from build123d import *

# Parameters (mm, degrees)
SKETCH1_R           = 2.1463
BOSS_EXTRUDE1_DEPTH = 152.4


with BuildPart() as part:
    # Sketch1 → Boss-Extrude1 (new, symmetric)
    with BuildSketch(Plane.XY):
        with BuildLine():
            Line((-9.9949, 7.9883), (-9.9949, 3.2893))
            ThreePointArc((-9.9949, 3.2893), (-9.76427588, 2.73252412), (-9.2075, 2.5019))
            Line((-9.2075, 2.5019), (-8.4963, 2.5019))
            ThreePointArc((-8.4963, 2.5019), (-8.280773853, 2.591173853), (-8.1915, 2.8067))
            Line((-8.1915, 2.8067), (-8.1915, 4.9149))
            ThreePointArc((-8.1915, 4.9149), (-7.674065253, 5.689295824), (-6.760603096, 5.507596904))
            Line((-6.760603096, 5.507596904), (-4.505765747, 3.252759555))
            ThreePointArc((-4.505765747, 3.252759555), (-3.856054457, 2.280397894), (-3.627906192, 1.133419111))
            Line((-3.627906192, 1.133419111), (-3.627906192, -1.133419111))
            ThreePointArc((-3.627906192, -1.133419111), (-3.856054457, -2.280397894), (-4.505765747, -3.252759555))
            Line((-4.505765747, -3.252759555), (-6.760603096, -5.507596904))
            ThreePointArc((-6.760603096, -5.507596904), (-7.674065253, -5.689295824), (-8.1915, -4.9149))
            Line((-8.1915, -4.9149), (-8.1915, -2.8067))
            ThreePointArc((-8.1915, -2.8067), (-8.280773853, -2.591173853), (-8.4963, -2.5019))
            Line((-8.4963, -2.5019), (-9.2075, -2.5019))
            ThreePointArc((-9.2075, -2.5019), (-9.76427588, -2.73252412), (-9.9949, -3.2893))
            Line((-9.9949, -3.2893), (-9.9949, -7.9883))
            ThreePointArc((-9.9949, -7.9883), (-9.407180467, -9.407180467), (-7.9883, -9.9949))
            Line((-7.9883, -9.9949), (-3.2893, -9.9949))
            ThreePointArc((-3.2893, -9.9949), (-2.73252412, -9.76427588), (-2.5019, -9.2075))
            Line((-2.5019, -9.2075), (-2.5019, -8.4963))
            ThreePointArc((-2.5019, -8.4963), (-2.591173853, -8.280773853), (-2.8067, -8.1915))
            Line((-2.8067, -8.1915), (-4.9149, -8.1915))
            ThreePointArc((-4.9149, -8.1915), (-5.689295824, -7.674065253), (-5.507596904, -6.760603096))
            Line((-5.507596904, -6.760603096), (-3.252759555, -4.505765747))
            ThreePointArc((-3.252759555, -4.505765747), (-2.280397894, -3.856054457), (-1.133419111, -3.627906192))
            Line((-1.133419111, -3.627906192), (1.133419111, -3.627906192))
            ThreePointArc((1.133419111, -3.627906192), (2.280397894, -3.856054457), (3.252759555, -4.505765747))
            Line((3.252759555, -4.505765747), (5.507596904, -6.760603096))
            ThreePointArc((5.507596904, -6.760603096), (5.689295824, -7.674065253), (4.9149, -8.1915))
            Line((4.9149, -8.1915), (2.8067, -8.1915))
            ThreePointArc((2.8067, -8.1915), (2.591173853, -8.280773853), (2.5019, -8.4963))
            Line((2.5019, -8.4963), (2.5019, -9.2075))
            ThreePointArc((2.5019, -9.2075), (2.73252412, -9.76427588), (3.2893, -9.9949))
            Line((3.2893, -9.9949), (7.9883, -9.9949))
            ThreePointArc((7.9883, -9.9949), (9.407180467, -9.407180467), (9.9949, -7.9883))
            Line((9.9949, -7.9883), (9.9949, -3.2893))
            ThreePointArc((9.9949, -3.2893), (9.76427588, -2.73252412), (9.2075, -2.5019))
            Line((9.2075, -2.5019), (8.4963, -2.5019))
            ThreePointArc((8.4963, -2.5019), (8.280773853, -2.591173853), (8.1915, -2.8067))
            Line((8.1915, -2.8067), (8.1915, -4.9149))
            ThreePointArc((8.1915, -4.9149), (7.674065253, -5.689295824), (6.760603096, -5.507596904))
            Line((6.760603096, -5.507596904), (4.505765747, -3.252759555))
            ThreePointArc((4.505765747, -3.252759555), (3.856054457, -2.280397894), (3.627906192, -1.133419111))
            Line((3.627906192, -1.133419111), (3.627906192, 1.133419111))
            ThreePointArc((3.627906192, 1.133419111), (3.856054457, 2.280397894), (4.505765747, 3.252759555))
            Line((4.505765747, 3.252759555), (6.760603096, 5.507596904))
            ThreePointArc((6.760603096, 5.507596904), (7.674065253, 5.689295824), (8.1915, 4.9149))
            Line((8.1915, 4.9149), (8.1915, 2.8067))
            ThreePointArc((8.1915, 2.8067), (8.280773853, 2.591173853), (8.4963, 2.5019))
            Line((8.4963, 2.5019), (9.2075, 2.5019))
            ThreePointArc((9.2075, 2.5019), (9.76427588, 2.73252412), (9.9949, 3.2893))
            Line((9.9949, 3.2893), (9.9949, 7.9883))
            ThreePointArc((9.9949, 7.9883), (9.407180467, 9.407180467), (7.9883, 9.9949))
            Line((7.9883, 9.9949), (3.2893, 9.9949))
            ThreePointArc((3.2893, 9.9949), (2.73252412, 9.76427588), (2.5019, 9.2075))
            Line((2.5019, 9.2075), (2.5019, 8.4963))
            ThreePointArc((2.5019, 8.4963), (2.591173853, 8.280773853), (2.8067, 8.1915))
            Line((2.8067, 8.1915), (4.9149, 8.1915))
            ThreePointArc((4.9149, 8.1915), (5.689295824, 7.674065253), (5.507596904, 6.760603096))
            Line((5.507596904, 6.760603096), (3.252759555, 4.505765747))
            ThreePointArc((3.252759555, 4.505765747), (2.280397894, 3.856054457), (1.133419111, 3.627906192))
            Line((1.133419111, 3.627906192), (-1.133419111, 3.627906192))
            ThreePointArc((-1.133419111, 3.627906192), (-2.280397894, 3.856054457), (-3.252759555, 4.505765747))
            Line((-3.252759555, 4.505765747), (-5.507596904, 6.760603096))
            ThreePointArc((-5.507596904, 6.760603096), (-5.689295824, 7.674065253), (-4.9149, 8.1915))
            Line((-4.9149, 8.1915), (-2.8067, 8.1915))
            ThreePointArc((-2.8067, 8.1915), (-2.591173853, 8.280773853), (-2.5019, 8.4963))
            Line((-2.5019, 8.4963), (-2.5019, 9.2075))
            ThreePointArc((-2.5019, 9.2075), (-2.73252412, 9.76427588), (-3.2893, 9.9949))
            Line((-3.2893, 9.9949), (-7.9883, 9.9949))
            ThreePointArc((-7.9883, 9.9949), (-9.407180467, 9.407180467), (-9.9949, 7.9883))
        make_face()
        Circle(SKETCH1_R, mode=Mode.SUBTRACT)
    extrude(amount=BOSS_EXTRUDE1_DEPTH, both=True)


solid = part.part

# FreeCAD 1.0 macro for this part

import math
import FreeCAD as App
import Part
import Sketcher
from FreeCAD import Vector
Q = App.Units.Quantity

doc = App.newDocument("Part")
body = doc.addObject("PartDesign::Body", "Body")

sketch1 = body.newObject("Sketcher::SketchObject", "Sketch")
sketch1.AttachmentSupport = (doc.getObject("XY_Plane"), [""])
sketch1.MapMode = "FlatFace"
sketch1.addGeometry(Part.LineSegment(Vector(-9.99, 7.99, 0), Vector(-9.99, 3.29, 0)), False)
sketch1.addGeometry(Part.ArcOfCircle(Part.Circle(Vector(-9.21, 3.29, 0), Vector(0, 0, 1), 0.79), math.radians(180), math.radians(270)), False)
sketch1.addGeometry(Part.LineSegment(Vector(-9.21, 2.5, 0), Vector(-8.5, 2.5, 0)), False)
sketch1.addGeometry(Part.ArcOfCircle(Part.Circle(Vector(-8.5, 2.81, 0), Vector(0, 0, 1), 0.3), math.radians(-90), math.radians(0)), False)
sketch1.addGeometry(Part.LineSegment(Vector(-8.19, 2.81, 0), Vector(-8.19, 4.91, 0)), False)
sketch1.addGeometry(Part.ArcOfCircle(Part.Circle(Vector(-7.35, 4.91, 0), Vector(0, 0, 1), 0.84), math.radians(45), math.radians(180)), False)
sketch1.addGeometry(Part.LineSegment(Vector(-6.76, 5.51, 0), Vector(-4.51, 3.25, 0)), False)
sketch1.addGeometry(Part.ArcOfCircle(Part.Circle(Vector(-6.63, 1.13, 0), Vector(0, 0, 1), 3), math.radians(0), math.radians(45)), False)
sketch1.addGeometry(Part.LineSegment(Vector(-3.63, 1.13, 0), Vector(-3.63, -1.13, 0)), False)
sketch1.addGeometry(Part.ArcOfCircle(Part.Circle(Vector(-6.63, -1.13, 0), Vector(0, 0, 1), 3), math.radians(-45), math.radians(0)), False)
sketch1.addGeometry(Part.LineSegment(Vector(-4.51, -3.25, 0), Vector(-6.76, -5.51, 0)), False)
sketch1.addGeometry(Part.ArcOfCircle(Part.Circle(Vector(-7.35, -4.91, 0), Vector(0, 0, 1), 0.84), math.radians(180), math.radians(315)), False)
sketch1.addGeometry(Part.LineSegment(Vector(-8.19, -4.91, 0), Vector(-8.19, -2.81, 0)), False)
sketch1.addGeometry(Part.ArcOfCircle(Part.Circle(Vector(-8.5, -2.81, 0), Vector(0, 0, 1), 0.3), math.radians(0), math.radians(90)), False)
sketch1.addGeometry(Part.LineSegment(Vector(-8.5, -2.5, 0), Vector(-9.21, -2.5, 0)), False)
sketch1.addGeometry(Part.ArcOfCircle(Part.Circle(Vector(-9.21, -3.29, 0), Vector(0, 0, 1), 0.79), math.radians(90), math.radians(180)), False)
sketch1.addGeometry(Part.LineSegment(Vector(-9.99, -3.29, 0), Vector(-9.99, -7.99, 0)), False)
sketch1.addGeometry(Part.ArcOfCircle(Part.Circle(Vector(-7.99, -7.99, 0), Vector(0, 0, 1), 2.01), math.radians(180), math.radians(270)), False)
sketch1.addGeometry(Part.LineSegment(Vector(-7.99, -9.99, 0), Vector(-3.29, -9.99, 0)), False)
sketch1.addGeometry(Part.ArcOfCircle(Part.Circle(Vector(-3.29, -9.21, 0), Vector(0, 0, 1), 0.79), math.radians(-90), math.radians(0)), False)
sketch1.addGeometry(Part.LineSegment(Vector(-2.5, -9.21, 0), Vector(-2.5, -8.5, 0)), False)
sketch1.addGeometry(Part.ArcOfCircle(Part.Circle(Vector(-2.81, -8.5, 0), Vector(0, 0, 1), 0.3), math.radians(0), math.radians(90)), False)
sketch1.addGeometry(Part.LineSegment(Vector(-2.81, -8.19, 0), Vector(-4.91, -8.19, 0)), False)
sketch1.addGeometry(Part.ArcOfCircle(Part.Circle(Vector(-4.91, -7.35, 0), Vector(0, 0, 1), 0.84), math.radians(135), math.radians(270)), False)
sketch1.addGeometry(Part.LineSegment(Vector(-5.51, -6.76, 0), Vector(-3.25, -4.51, 0)), False)
sketch1.addGeometry(Part.ArcOfCircle(Part.Circle(Vector(-1.13, -6.63, 0), Vector(0, 0, 1), 3), math.radians(90), math.radians(135)), False)
sketch1.addGeometry(Part.LineSegment(Vector(-1.13, -3.63, 0), Vector(1.13, -3.63, 0)), False)
sketch1.addGeometry(Part.ArcOfCircle(Part.Circle(Vector(1.13, -6.63, 0), Vector(0, 0, 1), 3), math.radians(45), math.radians(90)), False)
sketch1.addGeometry(Part.LineSegment(Vector(3.25, -4.51, 0), Vector(5.51, -6.76, 0)), False)
sketch1.addGeometry(Part.ArcOfCircle(Part.Circle(Vector(4.91, -7.35, 0), Vector(0, 0, 1), 0.84), math.radians(-90), math.radians(45)), False)
sketch1.addGeometry(Part.LineSegment(Vector(4.91, -8.19, 0), Vector(2.81, -8.19, 0)), False)
sketch1.addGeometry(Part.ArcOfCircle(Part.Circle(Vector(2.81, -8.5, 0), Vector(0, 0, 1), 0.3), math.radians(90), math.radians(180)), False)
sketch1.addGeometry(Part.LineSegment(Vector(2.5, -8.5, 0), Vector(2.5, -9.21, 0)), False)
sketch1.addGeometry(Part.ArcOfCircle(Part.Circle(Vector(3.29, -9.21, 0), Vector(0, 0, 1), 0.79), math.radians(180), math.radians(270)), False)
sketch1.addGeometry(Part.LineSegment(Vector(3.29, -9.99, 0), Vector(7.99, -9.99, 0)), False)
sketch1.addGeometry(Part.ArcOfCircle(Part.Circle(Vector(7.99, -7.99, 0), Vector(0, 0, 1), 2.01), math.radians(-90), math.radians(0)), False)
sketch1.addGeometry(Part.LineSegment(Vector(9.99, -7.99, 0), Vector(9.99, -3.29, 0)), False)
sketch1.addGeometry(Part.ArcOfCircle(Part.Circle(Vector(9.21, -3.29, 0), Vector(0, 0, 1), 0.79), math.radians(0), math.radians(90)), False)
sketch1.addGeometry(Part.LineSegment(Vector(9.21, -2.5, 0), Vector(8.5, -2.5, 0)), False)
sketch1.addGeometry(Part.ArcOfCircle(Part.Circle(Vector(8.5, -2.81, 0), Vector(0, 0, 1), 0.3), math.radians(90), math.radians(180)), False)
sketch1.addGeometry(Part.LineSegment(Vector(8.19, -2.81, 0), Vector(8.19, -4.91, 0)), False)
sketch1.addGeometry(Part.ArcOfCircle(Part.Circle(Vector(7.35, -4.91, 0), Vector(0, 0, 1), 0.84), math.radians(-135), math.radians(0)), False)
sketch1.addGeometry(Part.LineSegment(Vector(6.76, -5.51, 0), Vector(4.51, -3.25, 0)), False)
sketch1.addGeometry(Part.ArcOfCircle(Part.Circle(Vector(6.63, -1.13, 0), Vector(0, 0, 1), 3), math.radians(180), math.radians(225)), False)
sketch1.addGeometry(Part.LineSegment(Vector(3.63, -1.13, 0), Vector(3.63, 1.13, 0)), False)
sketch1.addGeometry(Part.ArcOfCircle(Part.Circle(Vector(6.63, 1.13, 0), Vector(0, 0, 1), 3), math.radians(135), math.radians(180)), False)
sketch1.addGeometry(Part.LineSegment(Vector(4.51, 3.25, 0), Vector(6.76, 5.51, 0)), False)
sketch1.addGeometry(Part.ArcOfCircle(Part.Circle(Vector(7.35, 4.91, 0), Vector(0, 0, 1), 0.84), math.radians(0), math.radians(135)), False)
sketch1.addGeometry(Part.LineSegment(Vector(8.19, 4.91, 0), Vector(8.19, 2.81, 0)), False)
sketch1.addGeometry(Part.ArcOfCircle(Part.Circle(Vector(8.5, 2.81, 0), Vector(0, 0, 1), 0.3), math.radians(180), math.radians(270)), False)
sketch1.addGeometry(Part.LineSegment(Vector(8.5, 2.5, 0), Vector(9.21, 2.5, 0)), False)
sketch1.addGeometry(Part.ArcOfCircle(Part.Circle(Vector(9.21, 3.29, 0), Vector(0, 0, 1), 0.79), math.radians(-90), math.radians(0)), False)
sketch1.addGeometry(Part.LineSegment(Vector(9.99, 3.29, 0), Vector(9.99, 7.99, 0)), False)
sketch1.addGeometry(Part.ArcOfCircle(Part.Circle(Vector(7.99, 7.99, 0), Vector(0, 0, 1), 2.01), math.radians(0), math.radians(90)), False)
sketch1.addGeometry(Part.LineSegment(Vector(7.99, 9.99, 0), Vector(3.29, 9.99, 0)), False)
sketch1.addGeometry(Part.ArcOfCircle(Part.Circle(Vector(3.29, 9.21, 0), Vector(0, 0, 1), 0.79), math.radians(90), math.radians(180)), False)
sketch1.addGeometry(Part.LineSegment(Vector(2.5, 9.21, 0), Vector(2.5, 8.5, 0)), False)
sketch1.addGeometry(Part.ArcOfCircle(Part.Circle(Vector(2.81, 8.5, 0), Vector(0, 0, 1), 0.3), math.radians(180), math.radians(270)), False)
sketch1.addGeometry(Part.LineSegment(Vector(2.81, 8.19, 0), Vector(4.91, 8.19, 0)), False)
sketch1.addGeometry(Part.ArcOfCircle(Part.Circle(Vector(4.91, 7.35, 0), Vector(0, 0, 1), 0.84), math.radians(-45), math.radians(90)), False)
sketch1.addGeometry(Part.LineSegment(Vector(5.51, 6.76, 0), Vector(3.25, 4.51, 0)), False)
sketch1.addGeometry(Part.ArcOfCircle(Part.Circle(Vector(1.13, 6.63, 0), Vector(0, 0, 1), 3), math.radians(-90), math.radians(-45)), False)
sketch1.addGeometry(Part.LineSegment(Vector(1.13, 3.63, 0), Vector(-1.13, 3.63, 0)), False)
sketch1.addGeometry(Part.ArcOfCircle(Part.Circle(Vector(-1.13, 6.63, 0), Vector(0, 0, 1), 3), math.radians(-135), math.radians(-90)), False)
sketch1.addGeometry(Part.LineSegment(Vector(-3.25, 4.51, 0), Vector(-5.51, 6.76, 0)), False)
sketch1.addGeometry(Part.ArcOfCircle(Part.Circle(Vector(-4.91, 7.35, 0), Vector(0, 0, 1), 0.84), math.radians(90), math.radians(225)), False)
sketch1.addGeometry(Part.LineSegment(Vector(-4.91, 8.19, 0), Vector(-2.81, 8.19, 0)), False)
sketch1.addGeometry(Part.ArcOfCircle(Part.Circle(Vector(-2.81, 8.5, 0), Vector(0, 0, 1), 0.3), math.radians(-90), math.radians(0)), False)
sketch1.addGeometry(Part.LineSegment(Vector(-2.5, 8.5, 0), Vector(-2.5, 9.21, 0)), False)
sketch1.addGeometry(Part.ArcOfCircle(Part.Circle(Vector(-3.29, 9.21, 0), Vector(0, 0, 1), 0.79), math.radians(0), math.radians(90)), False)
sketch1.addGeometry(Part.LineSegment(Vector(-3.29, 9.99, 0), Vector(-7.99, 9.99, 0)), False)
sketch1.addGeometry(Part.ArcOfCircle(Part.Circle(Vector(-7.99, 7.99, 0), Vector(0, 0, 1), 2.01), math.radians(90), math.radians(180)), False)
sketch1.addGeometry(Part.Circle(Vector(0, 0, 0), Vector(0, 0, 1), 2.15), False)
sketch1.addConstraint(Sketcher.Constraint("Tangent", 0, 2, 1, 1))
sketch1.addConstraint(Sketcher.Constraint("Tangent", 1, 2, 2, 1))
sketch1.addConstraint(Sketcher.Constraint("Tangent", 2, 2, 3, 1))
sketch1.addConstraint(Sketcher.Constraint("Tangent", 3, 2, 4, 1))
sketch1.addConstraint(Sketcher.Constraint("Tangent", 4, 2, 5, 2))
sketch1.addConstraint(Sketcher.Constraint("Tangent", 5, 1, 6, 1))
sketch1.addConstraint(Sketcher.Constraint("Tangent", 6, 2, 7, 2))
sketch1.addConstraint(Sketcher.Constraint("Tangent", 7, 1, 8, 1))
sketch1.addConstraint(Sketcher.Constraint("Tangent", 8, 2, 9, 2))
sketch1.addConstraint(Sketcher.Constraint("Tangent", 9, 1, 10, 1))
sketch1.addConstraint(Sketcher.Constraint("Tangent", 10, 2, 11, 2))
sketch1.addConstraint(Sketcher.Constraint("Tangent", 11, 1, 12, 1))
sketch1.addConstraint(Sketcher.Constraint("Tangent", 12, 2, 13, 1))
sketch1.addConstraint(Sketcher.Constraint("Tangent", 13, 2, 14, 1))
sketch1.addConstraint(Sketcher.Constraint("Tangent", 14, 2, 15, 1))
sketch1.addConstraint(Sketcher.Constraint("Tangent", 15, 2, 16, 1))
sketch1.addConstraint(Sketcher.Constraint("Tangent", 16, 2, 17, 1))
sketch1.addConstraint(Sketcher.Constraint("Tangent", 17, 2, 18, 1))
sketch1.addConstraint(Sketcher.Constraint("Tangent", 18, 2, 19, 1))
sketch1.addConstraint(Sketcher.Constraint("Tangent", 19, 2, 20, 1))
sketch1.addConstraint(Sketcher.Constraint("Tangent", 20, 2, 21, 1))
sketch1.addConstraint(Sketcher.Constraint("Tangent", 21, 2, 22, 1))
sketch1.addConstraint(Sketcher.Constraint("Tangent", 22, 2, 23, 2))
sketch1.addConstraint(Sketcher.Constraint("Tangent", 23, 1, 24, 1))
sketch1.addConstraint(Sketcher.Constraint("Tangent", 24, 2, 25, 2))
sketch1.addConstraint(Sketcher.Constraint("Tangent", 25, 1, 26, 1))
sketch1.addConstraint(Sketcher.Constraint("Tangent", 26, 2, 27, 2))
sketch1.addConstraint(Sketcher.Constraint("Tangent", 27, 1, 28, 1))
sketch1.addConstraint(Sketcher.Constraint("Tangent", 28, 2, 29, 2))
sketch1.addConstraint(Sketcher.Constraint("Tangent", 29, 1, 30, 1))
sketch1.addConstraint(Sketcher.Constraint("Tangent", 30, 2, 31, 1))
sketch1.addConstraint(Sketcher.Constraint("Tangent", 31, 2, 32, 1))
sketch1.addConstraint(Sketcher.Constraint("Tangent", 32, 2, 33, 1))
sketch1.addConstraint(Sketcher.Constraint("Tangent", 33, 2, 34, 1))
sketch1.addConstraint(Sketcher.Constraint("Tangent", 34, 2, 35, 1))
sketch1.addConstraint(Sketcher.Constraint("Tangent", 35, 2, 36, 1))
sketch1.addConstraint(Sketcher.Constraint("Tangent", 36, 2, 37, 1))
sketch1.addConstraint(Sketcher.Constraint("Tangent", 37, 2, 38, 1))
sketch1.addConstraint(Sketcher.Constraint("Tangent", 38, 2, 39, 1))
sketch1.addConstraint(Sketcher.Constraint("Tangent", 39, 2, 40, 1))
sketch1.addConstraint(Sketcher.Constraint("Tangent", 40, 2, 41, 2))
sketch1.addConstraint(Sketcher.Constraint("Tangent", 41, 1, 42, 1))
sketch1.addConstraint(Sketcher.Constraint("Tangent", 42, 2, 43, 2))
sketch1.addConstraint(Sketcher.Constraint("Tangent", 43, 1, 44, 1))
sketch1.addConstraint(Sketcher.Constraint("Tangent", 44, 2, 45, 2))
sketch1.addConstraint(Sketcher.Constraint("Tangent", 45, 1, 46, 1))
sketch1.addConstraint(Sketcher.Constraint("Tangent", 46, 2, 47, 2))
sketch1.addConstraint(Sketcher.Constraint("Tangent", 47, 1, 48, 1))
sketch1.addConstraint(Sketcher.Constraint("Tangent", 48, 2, 49, 1))
sketch1.addConstraint(Sketcher.Constraint("Tangent", 49, 2, 50, 1))
sketch1.addConstraint(Sketcher.Constraint("Tangent", 50, 2, 51, 1))
sketch1.addConstraint(Sketcher.Constraint("Tangent", 51, 2, 52, 1))
sketch1.addConstraint(Sketcher.Constraint("Tangent", 52, 2, 53, 1))
sketch1.addConstraint(Sketcher.Constraint("Tangent", 53, 2, 54, 1))
sketch1.addConstraint(Sketcher.Constraint("Tangent", 54, 2, 55, 1))
sketch1.addConstraint(Sketcher.Constraint("Tangent", 55, 2, 56, 1))
sketch1.addConstraint(Sketcher.Constraint("Tangent", 56, 2, 57, 1))
sketch1.addConstraint(Sketcher.Constraint("Tangent", 57, 2, 58, 1))
sketch1.addConstraint(Sketcher.Constraint("Tangent", 58, 2, 59, 2))
sketch1.addConstraint(Sketcher.Constraint("Tangent", 59, 1, 60, 1))
sketch1.addConstraint(Sketcher.Constraint("Tangent", 60, 2, 61, 2))
sketch1.addConstraint(Sketcher.Constraint("Tangent", 61, 1, 62, 1))
sketch1.addConstraint(Sketcher.Constraint("Tangent", 62, 2, 63, 2))
sketch1.addConstraint(Sketcher.Constraint("Tangent", 63, 1, 64, 1))
sketch1.addConstraint(Sketcher.Constraint("Tangent", 64, 2, 65, 2))
sketch1.addConstraint(Sketcher.Constraint("Tangent", 65, 1, 66, 1))
sketch1.addConstraint(Sketcher.Constraint("Tangent", 66, 2, 67, 1))
sketch1.addConstraint(Sketcher.Constraint("Tangent", 67, 2, 68, 1))
sketch1.addConstraint(Sketcher.Constraint("Tangent", 68, 2, 69, 1))
sketch1.addConstraint(Sketcher.Constraint("Tangent", 69, 2, 70, 1))
sketch1.addConstraint(Sketcher.Constraint("Tangent", 70, 2, 71, 1))
sketch1.addConstraint(Sketcher.Constraint("Tangent", 71, 2, 0, 1))
sketch1.addConstraint(Sketcher.Constraint("Vertical", 0))
sketch1.addConstraint(Sketcher.Constraint("Horizontal", 2))
sketch1.addConstraint(Sketcher.Constraint("Vertical", 4))
sketch1.addConstraint(Sketcher.Constraint("Vertical", 8))
sketch1.addConstraint(Sketcher.Constraint("Vertical", 12))
sketch1.addConstraint(Sketcher.Constraint("Horizontal", 14))
sketch1.addConstraint(Sketcher.Constraint("Vertical", 16))
sketch1.addConstraint(Sketcher.Constraint("Horizontal", 18))
sketch1.addConstraint(Sketcher.Constraint("Vertical", 20))
sketch1.addConstraint(Sketcher.Constraint("Horizontal", 22))
sketch1.addConstraint(Sketcher.Constraint("Horizontal", 26))
sketch1.addConstraint(Sketcher.Constraint("Horizontal", 30))
sketch1.addConstraint(Sketcher.Constraint("Vertical", 32))
sketch1.addConstraint(Sketcher.Constraint("Horizontal", 34))
sketch1.addConstraint(Sketcher.Constraint("Vertical", 36))
sketch1.addConstraint(Sketcher.Constraint("Horizontal", 38))
sketch1.addConstraint(Sketcher.Constraint("Vertical", 40))
sketch1.addConstraint(Sketcher.Constraint("Vertical", 44))
sketch1.addConstraint(Sketcher.Constraint("Vertical", 48))
sketch1.addConstraint(Sketcher.Constraint("Horizontal", 50))
sketch1.addConstraint(Sketcher.Constraint("Vertical", 52))
sketch1.addConstraint(Sketcher.Constraint("Horizontal", 54))
sketch1.addConstraint(Sketcher.Constraint("Vertical", 56))
sketch1.addConstraint(Sketcher.Constraint("Horizontal", 58))
sketch1.addConstraint(Sketcher.Constraint("Horizontal", 62))
sketch1.addConstraint(Sketcher.Constraint("Horizontal", 66))
sketch1.addConstraint(Sketcher.Constraint("Vertical", 68))
sketch1.addConstraint(Sketcher.Constraint("Horizontal", 70))
sketch1.addConstraint(Sketcher.Constraint("Coincident", 72, 3, -1, 1))
sketch1.addConstraint(Sketcher.Constraint("Equal", 7, 9))
sketch1.addConstraint(Sketcher.Constraint("Equal", 5, 11))
sketch1.addConstraint(Sketcher.Constraint("Equal", 3, 13))
sketch1.addConstraint(Sketcher.Constraint("Equal", 1, 15))
sketch1.addConstraint(Sketcher.Constraint("Equal", 15, 19))
sketch1.addConstraint(Sketcher.Constraint("Equal", 13, 21))
sketch1.addConstraint(Sketcher.Constraint("Equal", 11, 23))
sketch1.addConstraint(Sketcher.Constraint("Equal", 9, 25))
sketch1.addConstraint(Sketcher.Constraint("Equal", 25, 27))
sketch1.addConstraint(Sketcher.Constraint("Equal", 23, 29))
sketch1.addConstraint(Sketcher.Constraint("Equal", 21, 31))
sketch1.addConstraint(Sketcher.Constraint("Equal", 19, 33))
sketch1.addConstraint(Sketcher.Constraint("Equal", 17, 35))
sketch1.addConstraint(Sketcher.Constraint("Equal", 33, 37))
sketch1.addConstraint(Sketcher.Constraint("Equal", 31, 39))
sketch1.addConstraint(Sketcher.Constraint("Equal", 29, 41))
sketch1.addConstraint(Sketcher.Constraint("Equal", 27, 43))
sketch1.addConstraint(Sketcher.Constraint("Equal", 43, 45))
sketch1.addConstraint(Sketcher.Constraint("Equal", 41, 47))
sketch1.addConstraint(Sketcher.Constraint("Equal", 39, 49))
sketch1.addConstraint(Sketcher.Constraint("Equal", 37, 51))
sketch1.addConstraint(Sketcher.Constraint("Equal", 35, 53))
sketch1.addConstraint(Sketcher.Constraint("Equal", 51, 55))
sketch1.addConstraint(Sketcher.Constraint("Equal", 49, 57))
sketch1.addConstraint(Sketcher.Constraint("Equal", 47, 59))
sketch1.addConstraint(Sketcher.Constraint("Equal", 45, 61))
sketch1.addConstraint(Sketcher.Constraint("Equal", 61, 63))
sketch1.addConstraint(Sketcher.Constraint("Equal", 59, 65))
sketch1.addConstraint(Sketcher.Constraint("Equal", 57, 67))
sketch1.addConstraint(Sketcher.Constraint("Equal", 55, 69))
sketch1.addConstraint(Sketcher.Constraint("Equal", 53, 71))
sketch1.addConstraint(Sketcher.Constraint("Symmetric", 1, 3, 37, 3, -1, 1))
sketch1.addConstraint(Sketcher.Constraint("Symmetric", 5, 3, 41, 3, -1, 1))
sketch1.addConstraint(Sketcher.Constraint("Symmetric", 7, 3, 43, 3, -1, 1))
sketch1.addConstraint(Sketcher.Constraint("Symmetric", 11, 3, 47, 3, -1, 1))
sketch1.addConstraint(Sketcher.Constraint("Symmetric", 15, 3, 51, 3, -1, 1))
sketch1.addConstraint(Sketcher.Constraint("Symmetric", 19, 3, 55, 3, -1, 1))
sketch1.addConstraint(Sketcher.Constraint("Symmetric", 23, 3, 59, 3, -1, 1))
sketch1.addConstraint(Sketcher.Constraint("Symmetric", 25, 3, 61, 3, -1, 1))
sketch1.addConstraint(Sketcher.Constraint("Symmetric", 29, 3, 65, 3, -1, 1))
sketch1.addConstraint(Sketcher.Constraint("Symmetric", 33, 3, 69, 3, -1, 1))
sketch1.addConstraint(Sketcher.Constraint("Symmetric", 23, 3, 29, 3, -2))
sketch1.addConstraint(Sketcher.Constraint("Symmetric", 19, 3, 33, 3, -2))
sketch1.addConstraint(Sketcher.Constraint("Symmetric", 15, 3, 37, 3, -2))
sketch1.addConstraint(Sketcher.Constraint("Symmetric", 11, 3, 41, 3, -2))
sketch1.addConstraint(Sketcher.Constraint("Perpendicular", 6, 10))
sketch1.addConstraint(Sketcher.Constraint("Parallel", 10, 24))
sketch1.addConstraint(Sketcher.Constraint("Perpendicular", 24, 28))
sketch1.addConstraint(Sketcher.Constraint("Perpendicular", 42, 46))
sketch1.addConstraint(Sketcher.Constraint("Perpendicular", 60, 64))
sketch1.addConstraint(Sketcher.Constraint("Horizontal", 9, 3, 43, 3))
sketch1.addConstraint(Sketcher.Constraint("Equal", 70, 0))
sketch1.addConstraint(Sketcher.Constraint("Equal", 66, 4))
sketch1.addConstraint(Sketcher.Constraint("Equal", 62, 8))
sketch1.addConstraint(Sketcher.Constraint("Equal", 50, 20))
sketch1.addConstraint(Sketcher.Constraint("Equal", 10, 24))
sketch1.addConstraint(Sketcher.Constraint("Diameter", 72, Q("0.169 in")))
sketch1.addConstraint(Sketcher.Constraint("Radius", 1, Q("0.031 in")))
sketch1.addConstraint(Sketcher.Constraint("Radius", 3, Q("0.012 in")))
sketch1.addConstraint(Sketcher.Constraint("Radius", 5, Q("0.033 in")))
sketch1.addConstraint(Sketcher.Constraint("Radius", 7, Q("0.118 in")))
sketch1.addConstraint(Sketcher.Constraint("Radius", 17, Q("0.079 in")))
sketch1.addConstraint(Sketcher.Constraint("DistanceX", 2, 1, 2, 2, Q("0.028 in")))
sketch1.addConstraint(Sketcher.Constraint("DistanceX", 18, 1, 18, 2, Q("0.185 in")))
sketch1.addConstraint(Sketcher.Constraint("DistanceX", 22, 2, 22, 1, Q("0.083 in")))
sketch1.addConstraint(Sketcher.Constraint("DistanceX", 1, 3, -1, 1, Q("0.3625 in")))
sketch1.addConstraint(Sketcher.Constraint("DistanceX", 26, 1, 26, 2, Q("2.266838 mm")))
pad1 = body.newObject("PartDesign::Pad", "Pad")
pad1.Profile = sketch1
pad1.Length = Q("12 in")
pad1.Midplane = True

doc.recompute()
